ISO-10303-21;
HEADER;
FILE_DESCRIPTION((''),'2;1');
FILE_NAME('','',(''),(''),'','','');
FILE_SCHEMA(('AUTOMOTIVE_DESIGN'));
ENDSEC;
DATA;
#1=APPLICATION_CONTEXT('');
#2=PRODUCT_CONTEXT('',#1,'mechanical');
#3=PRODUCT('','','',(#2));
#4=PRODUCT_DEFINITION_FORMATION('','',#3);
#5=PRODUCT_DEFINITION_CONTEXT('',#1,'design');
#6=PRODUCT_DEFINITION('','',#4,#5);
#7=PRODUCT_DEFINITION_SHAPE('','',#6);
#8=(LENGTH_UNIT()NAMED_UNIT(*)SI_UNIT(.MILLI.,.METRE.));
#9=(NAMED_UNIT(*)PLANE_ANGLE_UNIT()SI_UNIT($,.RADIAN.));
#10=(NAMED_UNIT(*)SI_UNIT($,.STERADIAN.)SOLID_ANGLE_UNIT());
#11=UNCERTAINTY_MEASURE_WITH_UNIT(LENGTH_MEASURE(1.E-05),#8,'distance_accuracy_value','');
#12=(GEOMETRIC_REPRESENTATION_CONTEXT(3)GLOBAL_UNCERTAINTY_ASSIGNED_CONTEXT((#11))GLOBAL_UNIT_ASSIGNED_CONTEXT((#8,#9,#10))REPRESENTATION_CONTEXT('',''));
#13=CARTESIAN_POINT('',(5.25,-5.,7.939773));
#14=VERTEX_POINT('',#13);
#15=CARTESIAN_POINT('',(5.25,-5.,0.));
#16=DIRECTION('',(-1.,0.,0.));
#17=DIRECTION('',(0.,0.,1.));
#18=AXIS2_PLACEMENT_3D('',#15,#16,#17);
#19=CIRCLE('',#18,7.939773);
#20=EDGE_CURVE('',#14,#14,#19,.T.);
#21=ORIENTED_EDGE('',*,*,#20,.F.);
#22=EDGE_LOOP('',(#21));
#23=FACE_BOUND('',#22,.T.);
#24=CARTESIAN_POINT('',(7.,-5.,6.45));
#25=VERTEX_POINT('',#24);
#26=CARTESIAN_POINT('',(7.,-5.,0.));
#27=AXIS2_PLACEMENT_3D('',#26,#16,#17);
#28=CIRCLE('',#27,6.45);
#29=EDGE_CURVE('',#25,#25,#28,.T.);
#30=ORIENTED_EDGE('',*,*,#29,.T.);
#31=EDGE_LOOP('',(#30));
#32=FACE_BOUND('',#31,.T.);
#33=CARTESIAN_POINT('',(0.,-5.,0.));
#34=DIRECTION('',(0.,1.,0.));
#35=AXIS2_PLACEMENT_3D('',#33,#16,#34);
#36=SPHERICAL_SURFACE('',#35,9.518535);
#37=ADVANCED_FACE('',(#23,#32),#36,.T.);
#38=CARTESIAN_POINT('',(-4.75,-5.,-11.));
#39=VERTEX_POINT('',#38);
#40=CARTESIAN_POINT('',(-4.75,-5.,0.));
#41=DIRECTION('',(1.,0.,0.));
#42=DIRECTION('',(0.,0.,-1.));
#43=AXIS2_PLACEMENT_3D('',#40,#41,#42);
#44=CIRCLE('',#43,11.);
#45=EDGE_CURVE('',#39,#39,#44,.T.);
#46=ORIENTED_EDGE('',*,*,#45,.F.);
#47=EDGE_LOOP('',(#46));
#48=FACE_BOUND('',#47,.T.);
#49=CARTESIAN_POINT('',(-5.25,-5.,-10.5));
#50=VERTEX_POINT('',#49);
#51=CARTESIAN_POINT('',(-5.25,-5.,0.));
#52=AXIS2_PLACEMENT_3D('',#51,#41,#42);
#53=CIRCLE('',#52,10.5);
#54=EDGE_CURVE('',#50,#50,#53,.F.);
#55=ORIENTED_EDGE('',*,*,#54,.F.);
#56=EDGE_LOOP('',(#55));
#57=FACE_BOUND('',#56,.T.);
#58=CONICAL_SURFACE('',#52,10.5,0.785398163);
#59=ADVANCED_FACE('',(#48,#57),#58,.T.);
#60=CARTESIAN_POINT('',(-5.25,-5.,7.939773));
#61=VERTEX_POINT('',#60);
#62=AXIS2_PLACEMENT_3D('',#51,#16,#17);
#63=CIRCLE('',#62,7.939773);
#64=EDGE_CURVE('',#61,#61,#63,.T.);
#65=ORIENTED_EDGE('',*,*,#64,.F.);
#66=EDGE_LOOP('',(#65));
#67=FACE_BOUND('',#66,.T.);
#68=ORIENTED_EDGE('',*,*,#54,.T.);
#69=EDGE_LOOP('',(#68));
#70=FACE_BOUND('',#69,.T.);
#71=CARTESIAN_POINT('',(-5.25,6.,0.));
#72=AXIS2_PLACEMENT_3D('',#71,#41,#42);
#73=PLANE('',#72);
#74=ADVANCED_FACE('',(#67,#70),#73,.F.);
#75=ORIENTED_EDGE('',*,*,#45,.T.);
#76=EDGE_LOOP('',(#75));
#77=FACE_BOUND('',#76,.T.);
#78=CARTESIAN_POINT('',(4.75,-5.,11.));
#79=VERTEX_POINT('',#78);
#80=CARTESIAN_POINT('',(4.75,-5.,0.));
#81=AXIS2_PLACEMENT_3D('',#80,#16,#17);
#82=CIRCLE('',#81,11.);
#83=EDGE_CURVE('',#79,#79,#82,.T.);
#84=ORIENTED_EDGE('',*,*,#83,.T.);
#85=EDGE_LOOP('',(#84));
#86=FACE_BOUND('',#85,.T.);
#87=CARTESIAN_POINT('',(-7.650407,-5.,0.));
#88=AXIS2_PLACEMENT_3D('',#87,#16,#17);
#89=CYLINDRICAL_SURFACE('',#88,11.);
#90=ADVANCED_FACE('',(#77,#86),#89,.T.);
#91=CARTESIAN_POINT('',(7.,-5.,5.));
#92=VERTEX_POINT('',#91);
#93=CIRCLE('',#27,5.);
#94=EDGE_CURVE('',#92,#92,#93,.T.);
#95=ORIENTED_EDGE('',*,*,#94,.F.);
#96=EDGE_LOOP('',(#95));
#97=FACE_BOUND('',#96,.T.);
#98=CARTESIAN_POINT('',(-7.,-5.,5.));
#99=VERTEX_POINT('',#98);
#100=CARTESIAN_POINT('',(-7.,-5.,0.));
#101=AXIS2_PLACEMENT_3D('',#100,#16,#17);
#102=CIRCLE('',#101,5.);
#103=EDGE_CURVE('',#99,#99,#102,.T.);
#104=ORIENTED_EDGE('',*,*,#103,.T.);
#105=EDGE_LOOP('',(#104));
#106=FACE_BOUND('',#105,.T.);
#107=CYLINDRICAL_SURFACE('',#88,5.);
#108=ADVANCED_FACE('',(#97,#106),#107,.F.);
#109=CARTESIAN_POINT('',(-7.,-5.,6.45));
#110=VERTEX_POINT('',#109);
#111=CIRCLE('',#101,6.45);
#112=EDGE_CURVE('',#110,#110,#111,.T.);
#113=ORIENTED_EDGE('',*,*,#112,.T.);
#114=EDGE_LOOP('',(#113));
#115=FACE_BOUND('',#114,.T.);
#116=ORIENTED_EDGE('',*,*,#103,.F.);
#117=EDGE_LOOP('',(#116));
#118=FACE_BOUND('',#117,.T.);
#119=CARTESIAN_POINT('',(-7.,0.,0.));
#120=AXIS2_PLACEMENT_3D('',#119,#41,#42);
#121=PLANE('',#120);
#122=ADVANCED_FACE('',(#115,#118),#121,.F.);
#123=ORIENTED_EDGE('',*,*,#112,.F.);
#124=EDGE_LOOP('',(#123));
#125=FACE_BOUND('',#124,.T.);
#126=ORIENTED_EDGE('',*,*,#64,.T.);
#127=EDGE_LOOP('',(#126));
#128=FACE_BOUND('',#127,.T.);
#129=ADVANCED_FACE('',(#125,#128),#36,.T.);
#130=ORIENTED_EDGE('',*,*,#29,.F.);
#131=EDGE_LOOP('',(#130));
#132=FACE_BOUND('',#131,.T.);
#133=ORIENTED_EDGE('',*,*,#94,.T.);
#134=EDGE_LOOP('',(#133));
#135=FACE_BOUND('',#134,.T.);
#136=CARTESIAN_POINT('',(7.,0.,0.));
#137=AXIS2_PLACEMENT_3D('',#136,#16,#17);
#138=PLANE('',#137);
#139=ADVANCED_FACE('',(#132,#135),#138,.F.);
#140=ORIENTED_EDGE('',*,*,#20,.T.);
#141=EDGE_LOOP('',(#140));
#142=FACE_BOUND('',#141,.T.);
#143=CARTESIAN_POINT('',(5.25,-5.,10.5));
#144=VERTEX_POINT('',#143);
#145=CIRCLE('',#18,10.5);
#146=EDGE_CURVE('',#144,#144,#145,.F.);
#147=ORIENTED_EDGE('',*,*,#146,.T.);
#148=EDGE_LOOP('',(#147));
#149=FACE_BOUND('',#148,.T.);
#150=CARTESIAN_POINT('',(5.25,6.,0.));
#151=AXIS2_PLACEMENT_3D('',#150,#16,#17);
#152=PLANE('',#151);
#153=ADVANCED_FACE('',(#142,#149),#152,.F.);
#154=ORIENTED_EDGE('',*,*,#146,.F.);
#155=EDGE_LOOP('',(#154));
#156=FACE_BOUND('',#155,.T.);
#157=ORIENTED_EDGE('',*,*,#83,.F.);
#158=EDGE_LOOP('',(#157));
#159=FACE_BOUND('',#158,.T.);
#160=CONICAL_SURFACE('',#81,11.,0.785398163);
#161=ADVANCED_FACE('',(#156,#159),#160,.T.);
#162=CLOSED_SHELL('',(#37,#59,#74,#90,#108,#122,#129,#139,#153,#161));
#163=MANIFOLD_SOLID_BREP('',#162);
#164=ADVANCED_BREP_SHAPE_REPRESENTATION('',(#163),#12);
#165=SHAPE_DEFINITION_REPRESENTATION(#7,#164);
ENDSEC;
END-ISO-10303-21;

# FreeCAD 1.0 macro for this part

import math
import FreeCAD as App
import Part
import Sketcher
from FreeCAD import Vector
Q = App.Units.Quantity


def edges_at(feature, points):
    """Names of the edges that pass closest to the given points."""
    edges = feature.Shape.Edges
    near = lambda p: min(range(len(edges)), key=lambda i: edges[i].distToShape(Part.Vertex(*p))[0])
    return sorted({f"Edge{near(p) + 1}" for p in points})

doc = App.newDocument("Part")
body = doc.addObject("PartDesign::Body", "Body")

# Sketch on XY plane
sketch1 = body.newObject("Sketcher::SketchObject", "Sketch")
sketch1.AttachmentSupport = (doc.getObject("XY_Plane"), [""])
sketch1.MapMode = "FlatFace"
sketch1.addGeometry(Part.LineSegment(Vector(-7, 0, 0), Vector(7, 0, 0)), False)
sketch1.addGeometry(Part.LineSegment(Vector(7, 0, 0), Vector(7, 1.4, 0)), False)
sketch1.addGeometry(Part.ArcOfCircle(Part.Circle(Vector(0, -5, 0), Vector(0, 0, 1), 9.5), math.radians(42.66), math.radians(56.53)), False)
sketch1.addGeometry(Part.LineSegment(Vector(5.2, 2.9, 0), Vector(5.2, 6, 0)), False)
sketch1.addGeometry(Part.LineSegment(Vector(5.2, 6, 0), Vector(-5.2, 6, 0)), False)
sketch1.addGeometry(Part.LineSegment(Vector(-5.2, 6, 0), Vector(-5.2, 2.9, 0)), False)
sketch1.addGeometry(Part.ArcOfCircle(Part.Circle(Vector(0, -5, 0), Vector(0, 0, 1), 9.5), math.radians(123.47), math.radians(137.34)), False)
sketch1.addGeometry(Part.LineSegment(Vector(-7, 1.4, 0), Vector(-7, 0, 0)), False)
sketch1.addGeometry(Part.LineSegment(Vector(-7, -5, 0), Vector(7, -5, 0)), True)  # axis
sketch1.addConstraint(Sketcher.Constraint("Coincident", 0, 2, 1, 1))
sketch1.addConstraint(Sketcher.Constraint("Coincident", 1, 2, 2, 1))
sketch1.addConstraint(Sketcher.Constraint("Coincident", 2, 2, 3, 1))
sketch1.addConstraint(Sketcher.Constraint("Coincident", 3, 2, 4, 1))
sketch1.addConstraint(Sketcher.Constraint("Coincident", 4, 2, 5, 1))
sketch1.addConstraint(Sketcher.Constraint("Coincident", 5, 2, 6, 1))
sketch1.addConstraint(Sketcher.Constraint("Coincident", 6, 2, 7, 1))
sketch1.addConstraint(Sketcher.Constraint("Coincident", 7, 2, 0, 1))
sketch1.addConstraint(Sketcher.Constraint("Horizontal", 0))
sketch1.addConstraint(Sketcher.Constraint("Vertical", 1))
sketch1.addConstraint(Sketcher.Constraint("Vertical", 3))
sketch1.addConstraint(Sketcher.Constraint("Horizontal", 4))
sketch1.addConstraint(Sketcher.Constraint("Vertical", 5))
sketch1.addConstraint(Sketcher.Constraint("Vertical", 7))
sketch1.addConstraint(Sketcher.Constraint("Horizontal", 8))
sketch1.addConstraint(Sketcher.Constraint("Coincident", 6, 3, 2, 3))
sketch1.addConstraint(Sketcher.Constraint("Equal", 2, 6))
sketch1.addConstraint(Sketcher.Constraint("Symmetric", 0, 2, 7, 2, -1, 1))
sketch1.addConstraint(Sketcher.Constraint("Symmetric", 2, 2, 5, 2, -2))
sketch1.addConstraint(Sketcher.Constraint("Horizontal", 6, 3, 8, 1))
sketch1.addConstraint(Sketcher.Constraint("Vertical", 7, 2, 8, 1))
sketch1.addConstraint(Sketcher.Constraint("Vertical", 1, 2, 8, 2))
sketch1.addConstraint(Sketcher.Constraint("DistanceX", 0, 1, 0, 2, Q("14 mm")))
sketch1.addConstraint(Sketcher.Constraint("DistanceX", 4, 2, 4, 1, Q("10.5 mm")))
sketch1.addConstraint(Sketcher.Constraint("DistanceY", 2, 3, -1, 1, Q("5 mm")))
sketch1.addConstraint(Sketcher.Constraint("DistanceY", -1, 1, 3, 2, Q("6 mm")))
sketch1.addConstraint(Sketcher.Constraint("DistanceY", 1, 1, 1, 2, Q("1.45 mm")))
revolution = body.newObject("PartDesign::Revolution", "Revolution")
revolution.Profile = sketch1
revolution.ReferenceAxis = (sketch1, ["Axis0"])
revolution.Angle = 360
doc.recompute()

chamfer = body.newObject("PartDesign::Chamfer", "Chamfer")
chamfer.Base = (revolution, edges_at(revolution, [(-5.25, -16, 0), (5.25, -16, 0)]))
chamfer.Size = 0.5

doc.recompute()
